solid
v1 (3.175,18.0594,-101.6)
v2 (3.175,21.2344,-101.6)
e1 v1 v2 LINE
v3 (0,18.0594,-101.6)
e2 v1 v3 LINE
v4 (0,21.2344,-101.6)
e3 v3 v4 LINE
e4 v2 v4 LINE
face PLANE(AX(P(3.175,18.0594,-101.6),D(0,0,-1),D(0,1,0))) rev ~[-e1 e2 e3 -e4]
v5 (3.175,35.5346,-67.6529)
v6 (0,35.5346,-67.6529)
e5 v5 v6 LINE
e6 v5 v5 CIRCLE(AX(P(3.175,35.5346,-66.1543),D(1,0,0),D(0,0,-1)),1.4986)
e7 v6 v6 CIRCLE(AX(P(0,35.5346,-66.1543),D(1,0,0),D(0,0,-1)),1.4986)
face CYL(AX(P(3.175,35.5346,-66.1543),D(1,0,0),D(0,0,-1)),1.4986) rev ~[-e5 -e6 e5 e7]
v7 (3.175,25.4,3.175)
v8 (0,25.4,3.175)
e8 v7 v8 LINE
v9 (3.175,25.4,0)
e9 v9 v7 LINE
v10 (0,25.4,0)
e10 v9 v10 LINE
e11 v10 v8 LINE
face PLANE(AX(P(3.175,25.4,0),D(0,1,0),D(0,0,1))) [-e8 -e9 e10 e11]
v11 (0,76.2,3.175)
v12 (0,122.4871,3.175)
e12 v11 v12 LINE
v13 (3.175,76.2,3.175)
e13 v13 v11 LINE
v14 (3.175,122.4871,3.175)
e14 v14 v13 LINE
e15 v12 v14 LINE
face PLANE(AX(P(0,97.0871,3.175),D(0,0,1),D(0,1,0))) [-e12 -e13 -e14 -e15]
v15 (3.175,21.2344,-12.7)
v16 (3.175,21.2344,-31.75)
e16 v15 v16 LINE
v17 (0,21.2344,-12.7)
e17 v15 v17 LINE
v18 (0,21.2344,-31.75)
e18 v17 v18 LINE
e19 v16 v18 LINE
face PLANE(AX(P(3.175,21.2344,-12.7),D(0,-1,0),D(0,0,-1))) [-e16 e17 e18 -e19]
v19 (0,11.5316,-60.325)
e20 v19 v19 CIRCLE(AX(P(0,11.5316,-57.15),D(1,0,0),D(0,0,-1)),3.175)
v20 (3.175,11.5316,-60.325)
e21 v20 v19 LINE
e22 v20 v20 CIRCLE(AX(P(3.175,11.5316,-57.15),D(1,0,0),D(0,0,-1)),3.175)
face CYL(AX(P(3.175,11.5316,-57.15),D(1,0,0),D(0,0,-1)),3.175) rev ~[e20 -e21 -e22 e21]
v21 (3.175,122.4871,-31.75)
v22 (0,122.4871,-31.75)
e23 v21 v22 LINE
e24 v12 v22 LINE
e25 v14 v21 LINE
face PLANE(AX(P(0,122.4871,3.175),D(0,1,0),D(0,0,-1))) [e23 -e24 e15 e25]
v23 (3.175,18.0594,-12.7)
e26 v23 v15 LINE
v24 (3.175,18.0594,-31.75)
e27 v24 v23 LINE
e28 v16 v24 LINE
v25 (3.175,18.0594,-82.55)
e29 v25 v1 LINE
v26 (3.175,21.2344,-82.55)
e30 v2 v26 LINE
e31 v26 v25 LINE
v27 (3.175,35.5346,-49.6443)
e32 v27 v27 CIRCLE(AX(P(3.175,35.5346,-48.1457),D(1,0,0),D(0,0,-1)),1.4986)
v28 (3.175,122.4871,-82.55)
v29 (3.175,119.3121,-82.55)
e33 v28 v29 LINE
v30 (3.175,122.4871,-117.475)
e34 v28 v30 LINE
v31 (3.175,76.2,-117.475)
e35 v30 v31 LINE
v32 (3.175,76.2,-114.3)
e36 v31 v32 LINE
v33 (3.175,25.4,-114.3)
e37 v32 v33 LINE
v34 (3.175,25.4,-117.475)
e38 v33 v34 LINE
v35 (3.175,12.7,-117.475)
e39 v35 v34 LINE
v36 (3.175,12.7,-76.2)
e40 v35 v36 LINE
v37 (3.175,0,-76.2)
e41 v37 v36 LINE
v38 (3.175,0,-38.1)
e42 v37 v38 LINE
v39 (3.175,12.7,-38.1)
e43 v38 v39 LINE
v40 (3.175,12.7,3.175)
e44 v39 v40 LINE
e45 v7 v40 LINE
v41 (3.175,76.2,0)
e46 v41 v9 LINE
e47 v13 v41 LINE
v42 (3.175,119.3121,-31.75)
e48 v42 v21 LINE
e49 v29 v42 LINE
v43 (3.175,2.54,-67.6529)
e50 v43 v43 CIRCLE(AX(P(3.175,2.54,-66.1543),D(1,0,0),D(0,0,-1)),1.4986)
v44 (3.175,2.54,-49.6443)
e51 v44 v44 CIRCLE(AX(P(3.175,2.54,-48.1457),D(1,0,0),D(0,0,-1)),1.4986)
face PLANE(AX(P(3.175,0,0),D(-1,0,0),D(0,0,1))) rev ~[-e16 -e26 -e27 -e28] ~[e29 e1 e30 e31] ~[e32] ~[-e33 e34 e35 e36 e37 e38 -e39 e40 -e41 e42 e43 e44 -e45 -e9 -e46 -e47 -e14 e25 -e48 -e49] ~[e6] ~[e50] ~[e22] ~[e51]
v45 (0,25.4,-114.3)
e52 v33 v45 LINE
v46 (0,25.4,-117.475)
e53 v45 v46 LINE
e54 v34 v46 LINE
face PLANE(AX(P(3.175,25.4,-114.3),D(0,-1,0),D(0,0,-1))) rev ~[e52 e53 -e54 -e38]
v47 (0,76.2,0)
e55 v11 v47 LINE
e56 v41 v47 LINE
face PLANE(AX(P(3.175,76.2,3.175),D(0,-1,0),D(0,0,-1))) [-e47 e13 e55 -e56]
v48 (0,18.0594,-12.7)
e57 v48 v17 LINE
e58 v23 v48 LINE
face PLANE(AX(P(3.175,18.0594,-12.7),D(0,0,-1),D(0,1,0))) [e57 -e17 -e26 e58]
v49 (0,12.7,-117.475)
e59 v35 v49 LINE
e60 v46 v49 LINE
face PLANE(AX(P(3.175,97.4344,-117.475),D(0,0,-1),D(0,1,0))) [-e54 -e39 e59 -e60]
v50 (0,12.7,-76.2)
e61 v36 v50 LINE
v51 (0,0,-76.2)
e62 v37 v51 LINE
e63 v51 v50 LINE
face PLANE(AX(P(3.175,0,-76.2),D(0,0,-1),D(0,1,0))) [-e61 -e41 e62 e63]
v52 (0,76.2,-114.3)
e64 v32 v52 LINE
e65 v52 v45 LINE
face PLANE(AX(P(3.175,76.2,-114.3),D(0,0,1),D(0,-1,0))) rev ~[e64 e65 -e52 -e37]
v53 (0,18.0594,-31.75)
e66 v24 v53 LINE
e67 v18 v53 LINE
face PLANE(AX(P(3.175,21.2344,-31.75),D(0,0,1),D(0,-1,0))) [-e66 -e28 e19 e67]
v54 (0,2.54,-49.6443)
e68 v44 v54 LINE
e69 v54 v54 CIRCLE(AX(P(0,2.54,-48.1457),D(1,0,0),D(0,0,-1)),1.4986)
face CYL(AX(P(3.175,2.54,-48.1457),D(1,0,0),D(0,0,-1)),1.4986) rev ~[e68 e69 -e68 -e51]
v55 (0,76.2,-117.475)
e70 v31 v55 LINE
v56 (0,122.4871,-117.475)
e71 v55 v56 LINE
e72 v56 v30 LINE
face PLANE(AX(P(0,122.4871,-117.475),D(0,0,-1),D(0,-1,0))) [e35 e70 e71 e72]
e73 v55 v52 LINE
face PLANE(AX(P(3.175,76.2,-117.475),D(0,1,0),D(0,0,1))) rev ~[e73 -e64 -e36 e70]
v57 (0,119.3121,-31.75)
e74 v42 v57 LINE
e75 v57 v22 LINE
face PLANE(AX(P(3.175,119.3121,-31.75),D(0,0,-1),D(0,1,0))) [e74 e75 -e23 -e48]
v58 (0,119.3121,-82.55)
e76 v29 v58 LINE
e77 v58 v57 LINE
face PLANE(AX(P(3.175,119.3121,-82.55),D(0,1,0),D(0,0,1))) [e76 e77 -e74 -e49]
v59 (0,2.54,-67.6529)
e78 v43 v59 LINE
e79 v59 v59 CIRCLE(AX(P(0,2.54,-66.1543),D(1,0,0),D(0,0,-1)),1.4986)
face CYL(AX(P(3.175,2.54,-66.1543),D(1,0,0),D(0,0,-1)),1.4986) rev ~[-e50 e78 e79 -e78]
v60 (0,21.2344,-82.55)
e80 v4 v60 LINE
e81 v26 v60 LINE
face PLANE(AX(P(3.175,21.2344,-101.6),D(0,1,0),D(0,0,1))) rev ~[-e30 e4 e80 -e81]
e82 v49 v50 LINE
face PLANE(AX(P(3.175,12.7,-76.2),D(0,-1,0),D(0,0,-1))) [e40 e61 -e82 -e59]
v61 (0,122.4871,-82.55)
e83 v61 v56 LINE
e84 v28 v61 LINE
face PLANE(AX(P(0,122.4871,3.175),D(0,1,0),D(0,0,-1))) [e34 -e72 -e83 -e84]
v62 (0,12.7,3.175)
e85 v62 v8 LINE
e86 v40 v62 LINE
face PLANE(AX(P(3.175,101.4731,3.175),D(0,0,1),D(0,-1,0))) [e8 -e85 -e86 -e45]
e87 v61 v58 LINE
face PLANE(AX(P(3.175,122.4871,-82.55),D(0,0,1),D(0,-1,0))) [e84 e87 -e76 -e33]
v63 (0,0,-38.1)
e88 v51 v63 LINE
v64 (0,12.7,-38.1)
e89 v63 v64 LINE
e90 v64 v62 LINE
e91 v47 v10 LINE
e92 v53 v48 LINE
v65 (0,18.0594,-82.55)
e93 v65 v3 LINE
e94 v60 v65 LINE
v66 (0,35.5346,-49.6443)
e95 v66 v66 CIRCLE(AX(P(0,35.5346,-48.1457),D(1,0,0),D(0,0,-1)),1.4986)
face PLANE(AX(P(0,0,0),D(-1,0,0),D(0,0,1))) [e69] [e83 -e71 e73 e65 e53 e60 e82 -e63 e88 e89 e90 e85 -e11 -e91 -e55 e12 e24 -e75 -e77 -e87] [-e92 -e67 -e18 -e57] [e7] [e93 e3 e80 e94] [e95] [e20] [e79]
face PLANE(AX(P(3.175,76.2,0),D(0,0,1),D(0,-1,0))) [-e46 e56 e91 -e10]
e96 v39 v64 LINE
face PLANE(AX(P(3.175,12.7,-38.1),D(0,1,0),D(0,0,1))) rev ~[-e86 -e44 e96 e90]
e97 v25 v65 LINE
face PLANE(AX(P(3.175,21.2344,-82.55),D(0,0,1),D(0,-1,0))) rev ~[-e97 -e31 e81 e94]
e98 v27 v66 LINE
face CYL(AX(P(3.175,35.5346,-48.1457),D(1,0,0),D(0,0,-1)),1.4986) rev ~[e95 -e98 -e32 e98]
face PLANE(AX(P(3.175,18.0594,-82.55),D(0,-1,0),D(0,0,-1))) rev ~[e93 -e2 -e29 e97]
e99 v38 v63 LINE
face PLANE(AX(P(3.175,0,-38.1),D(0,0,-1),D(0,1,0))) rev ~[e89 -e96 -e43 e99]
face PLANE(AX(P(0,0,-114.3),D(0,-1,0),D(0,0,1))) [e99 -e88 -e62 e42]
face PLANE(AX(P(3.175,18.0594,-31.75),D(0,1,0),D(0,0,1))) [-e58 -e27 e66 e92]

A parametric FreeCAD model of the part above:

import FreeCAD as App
import Part
import Sketcher
from FreeCAD import Vector
Q = App.Units.Quantity


def add_polygon(sketch, points):
    """Adds a closed chain of lines whose ends are joined by coincident constraints."""
    first, n = sketch.GeometryCount, len(points)
    for a, b in zip(points, points[1:] + points[:1]):
        sketch.addGeometry(Part.LineSegment(App.Vector(*a, 0), App.Vector(*b, 0)), False)
    for i in range(n):
        sketch.addConstraint(Sketcher.Constraint("Coincident", first + i, 2, first + (i + 1) % n, 1))

doc = App.newDocument("Part")
body = doc.addObject("PartDesign::Body", "Body")

# Sketch on YZ plane
sketch1 = doc.addObject("Sketcher::SketchObject", "Sketch")
body.addObject(sketch1)
sketch1.AttachmentSupport = (doc.YZ_Plane, [""])
sketch1.MapMode = "FlatFace"
add_polygon(sketch1, [(97, 0), (0, 0), (0, -114), (97, -114)])  # lines 0-3
sketch1.addConstraint([
    Sketcher.Constraint("Horizontal", 0),
    Sketcher.Constraint("Vertical", 1),
    Sketcher.Constraint("Horizontal", 2),
    Sketcher.Constraint("Vertical", 3),
    Sketcher.Constraint("Coincident", 0, 2, -1, 1),
    Sketcher.Constraint("DistanceY", 1, 2, 1, 1, Q("4.5 in")),
    Sketcher.Constraint("DistanceX", 0, 2, 0, 1, Q("3.836 in")),
])
pad1 = doc.addObject("PartDesign::Pad", "Pad")
body.addObject(pad1)
pad1.Profile = sketch1
pad1.Length = Q("0.125 in")

# Sketch on YZ plane
sketch2 = doc.addObject("Sketcher::SketchObject", "Sketch001")
body.addObject(sketch2)
sketch2.AttachmentSupport = (doc.YZ_Plane, [""])
sketch2.MapMode = "FlatFace"
sketch2.AttachmentOffset = App.Placement(Vector(0, 0, 0.125 * 25.4), App.Rotation())
sketch2.addGeometry([
    Part.Circle(Vector(35.5, -48.1, 0), Vector(0, 0, 1), 1.5),
    Part.Circle(Vector(35.5, -66.2, 0), Vector(0, 0, 1), 1.5),
    Part.Circle(Vector(2.5, -66.2, 0), Vector(0, 0, 1), 1.5),
    Part.Circle(Vector(2.5, -48.1, 0), Vector(0, 0, 1), 1.5),
], False)
sketch2.addConstraint([
    Sketcher.Constraint("Equal", 0, 1),
    Sketcher.Constraint("Equal", 1, 2),
    Sketcher.Constraint("Equal", 2, 3),
    Sketcher.Constraint("Horizontal", 1, 3, 2, 3),
    Sketcher.Constraint("Horizontal", 0, 3, 3, 3),
    Sketcher.Constraint("Vertical", 0, 3, 1, 3),
    Sketcher.Constraint("Vertical", 2, 3, 3, 3),
    Sketcher.Constraint("Diameter", 0, Q("0.118 in")),
    Sketcher.Constraint("DistanceX", -1, 1, 2, 3, Q("0.1 in")),
    Sketcher.Constraint("DistanceY", 1, 3, 0, 3, Q("0.709 in")),
    Sketcher.Constraint("DistanceX", 2, 3, 1, 3, Q("1.299 in")),
    Sketcher.Constraint("DistanceY", 0, 3, -1, 1, Q("1.8955 in")),
])
pocket1 = doc.addObject("PartDesign::Pocket", "Pocket")
body.addObject(pocket1)
pocket1.Profile = sketch2
pocket1.Length = Q("0.125 in")

# Sketch on YZ plane
sketch3 = doc.addObject("Sketcher::SketchObject", "Sketch002")
body.addObject(sketch3)
sketch3.AttachmentSupport = (doc.YZ_Plane, [""])
sketch3.MapMode = "FlatFace"
sketch3.AttachmentOffset = App.Placement(Vector(0, 0, 0.125 * 25.4), App.Rotation())
sketch3.addGeometry(Part.Circle(Vector(11.5, -57.1, 0), Vector(0, 0, 1), 3.2), False)
sketch3.addConstraint([
    Sketcher.Constraint("Diameter", 0, Q("0.25 in")),
    Sketcher.Constraint("DistanceY", 0, 3, -1, 1, Q("2.25 in")),
    Sketcher.Constraint("DistanceX", -1, 1, 0, 3, Q("0.454 in")),
])
pocket2 = doc.addObject("PartDesign::Pocket", "Pocket001")
body.addObject(pocket2)
pocket2.Profile = sketch3
pocket2.Length = Q("0.125 in")

# Sketch on YZ plane
sketch4 = doc.addObject("Sketcher::SketchObject", "Sketch003")
body.addObject(sketch4)
sketch4.AttachmentSupport = (doc.YZ_Plane, [""])
sketch4.MapMode = "FlatFace"
sketch4.AttachmentOffset = App.Placement(Vector(0, 0, 0.125 * 25.4), App.Rotation())
add_polygon(sketch4, [(18.1, -12.7), (18.1, -31.8), (21.2, -31.8), (21.2, -12.7)])  # lines 0-3
add_polygon(sketch4, [(21.2, -82.5), (18.1, -82.5), (18.1, -101.6), (21.2, -101.6)])  # lines 4-7
sketch4.addConstraint([
    Sketcher.Constraint("Vertical", 0),
    Sketcher.Constraint("Horizontal", 1),
    Sketcher.Constraint("Vertical", 2),
    Sketcher.Constraint("Horizontal", 3),
    Sketcher.Constraint("Horizontal", 4),
    Sketcher.Constraint("Vertical", 5),
    Sketcher.Constraint("Horizontal", 6),
    Sketcher.Constraint("Vertical", 7),
    Sketcher.Constraint("Vertical", 3, 2, 4, 2),
    Sketcher.Constraint("Vertical", 2, 2, 6, 2),
    Sketcher.Constraint("Equal", 2, 5),
    Sketcher.Constraint("DistanceY", 0, 2, 0, 1, Q("0.75 in")),
    Sketcher.Constraint("DistanceY", 2, 2, -1, 1, Q("0.5 in")),
    Sketcher.Constraint("DistanceX", 1, 1, 1, 2, Q("0.125 in")),
    Sketcher.Constraint("DistanceX", -1, 1, 0, 2, Q("0.711 in")),
    Sketcher.Constraint("DistanceY", 5, 2, -1, 1, Q("4 in")),
])
pocket3 = doc.addObject("PartDesign::Pocket", "Pocket002")
body.addObject(pocket3)
pocket3.Profile = sketch4
pocket3.Length = Q("0.125 in")

# Sketch on YZ plane
sketch5 = doc.addObject("Sketcher::SketchObject", "Sketch004")
body.addObject(sketch5)
sketch5.AttachmentSupport = (doc.YZ_Plane, [""])
sketch5.MapMode = "FlatFace"
sketch5.AttachmentOffset = App.Placement(Vector(0, 0, 0.125 * 25.4), App.Rotation())
add_polygon(sketch5, [(13, 0), (0, 0), (0, -38), (13, -38)])  # lines 0-3
add_polygon(sketch5, [(13, -76), (0, -76), (0, -114), (13, -114)])  # lines 4-7
sketch5.addConstraint([
    Sketcher.Constraint("Horizontal", 0),
    Sketcher.Constraint("Vertical", 1),
    Sketcher.Constraint("Horizontal", 2),
    Sketcher.Constraint("Vertical", 3),
    Sketcher.Constraint("Horizontal", 4),
    Sketcher.Constraint("Vertical", 5),
    Sketcher.Constraint("Horizontal", 6),
    Sketcher.Constraint("Vertical", 7),
    Sketcher.Constraint("Coincident", 0, 2, -1, 1),
    Sketcher.Constraint("PointOnObject", 4, 2, -2),
    Sketcher.Constraint("Vertical", 3, 2, 6, 2),
    Sketcher.Constraint("Equal", 3, 5),
    Sketcher.Constraint("DistanceX", 0, 2, 0, 1, Q("0.5 in")),
    Sketcher.Constraint("DistanceY", 1, 2, 1, 1, Q("1.5 in")),
    Sketcher.Constraint("DistanceY", 4, 2, 1, 2, Q("1.5 in")),
])
pocket4 = doc.addObject("PartDesign::Pocket", "Pocket003")
body.addObject(pocket4)
pocket4.Profile = sketch5
pocket4.Length = Q("0.125 in")

# Sketch on YZ plane
sketch6 = doc.addObject("Sketcher::SketchObject", "Sketch005")
body.addObject(sketch6)
sketch6.AttachmentSupport = (doc.YZ_Plane, [""])
sketch6.MapMode = "FlatFace"
sketch6.AttachmentOffset = App.Placement(Vector(0, 0, 0.125 * 25.4), App.Rotation())
add_polygon(sketch6, [(69.8, -3.2), (69.8, 0), (50.8, 0), (50.8, -3.2)])  # lines 0-3
add_polygon(sketch6, [(50.8, -114.3), (69.8, -114.3), (69.8, -111.1), (50.8, -111.1)])  # lines 4-7
sketch6.addConstraint([
    Sketcher.Constraint("Vertical", 0),
    Sketcher.Constraint("Horizontal", 1),
    Sketcher.Constraint("Vertical", 2),
    Sketcher.Constraint("Horizontal", 3),
    Sketcher.Constraint("Horizontal", 4),
    Sketcher.Constraint("Vertical", 5),
    Sketcher.Constraint("Horizontal", 6),
    Sketcher.Constraint("Vertical", 7),
    Sketcher.Constraint("PointOnObject", 0, 2, -1),
    Sketcher.Constraint("Vertical", 3, 2, 4, 2),
    Sketcher.Constraint("Vertical", 2, 2, 6, 2),
    Sketcher.Constraint("Equal", 2, 5),
    Sketcher.Constraint("DistanceX", 1, 2, 1, 1, Q("0.75 in")),
    Sketcher.Constraint("DistanceY", 0, 1, 0, 2, Q("0.125 in")),
    Sketcher.Constraint("DistanceX", -1, 1, 1, 2, Q("2 in")),
    Sketcher.Constraint("DistanceY", 4, 2, -1, 1, Q("4.5 in")),
])
pocket5 = doc.addObject("PartDesign::Pocket", "Pocket004")
body.addObject(pocket5)
pocket5.Profile = sketch6
pocket5.Length = Q("0.125 in")

# Sketch on YZ plane
sketch7 = doc.addObject("Sketcher::SketchObject", "Sketch006")
body.addObject(sketch7)
sketch7.AttachmentSupport = (doc.YZ_Plane, [""])
sketch7.MapMode = "FlatFace"
sketch7.AttachmentOffset = App.Placement(Vector(0, 0, 0.125 * 25.4), App.Rotation())
add_polygon(sketch7, [(101.5, 0), (101.5, 3.2), (12.7, 3.2), (12.7, 0), (50.8, 0), (50.8, -3.3), (69.8, -3.3), (69.8, 0)])  # lines 0-7
add_polygon(sketch7, [(101.5, -114.3), (69.8, -114.3), (69.8, -111.1), (50.8, -111.1), (50.8, -114.3), (12.7, -114.3), (12.7, -117.5), (101.5, -117.5)])  # lines 8-15
sketch7.addConstraint([
    Sketcher.Constraint("Vertical", 0),
    Sketcher.Constraint("Horizontal", 1),
    Sketcher.Constraint("Vertical", 2),
    Sketcher.Constraint("Horizontal", 3),
    Sketcher.Constraint("Vertical", 4),
    Sketcher.Constraint("Horizontal", 5),
    Sketcher.Constraint("Vertical", 6),
    Sketcher.Constraint("Horizontal", 7),
    Sketcher.Constraint("Horizontal", 8),
    Sketcher.Constraint("Vertical", 9),
    Sketcher.Constraint("Horizontal", 10),
    Sketcher.Constraint("Vertical", 11),
    Sketcher.Constraint("Horizontal", 12),
    Sketcher.Constraint("Vertical", 13),
    Sketcher.Constraint("Horizontal", 14),
    Sketcher.Constraint("Vertical", 15),
    Sketcher.Constraint("PointOnObject", 2, 2, -1),
    Sketcher.Constraint("PointOnObject", 6, 2, -1),
    Sketcher.Constraint("Horizontal", 8, 2, 11, 2),
    Sketcher.Constraint("Vertical", 6, 2, 8, 2),
    Sketcher.Constraint("Vertical", 4, 2, 10, 2),
    Sketcher.Constraint("Vertical", 2, 2, 12, 2),
    Sketcher.Constraint("Vertical", 7, 2, 14, 2),
    Sketcher.Constraint("Equal", 2, 9),
    Sketcher.Constraint("Equal", 11, 13),
    Sketcher.Constraint("DistanceY", 0, 1, 0, 2, Q("0.125 in")),
    Sketcher.Constraint("DistanceX", 3, 1, 3, 2, Q("1.5 in")),
    Sketcher.Constraint("DistanceX", -1, 1, 3, 2, Q("2 in")),
    Sketcher.Constraint("DistanceX", 5, 1, 5, 2, Q("0.75 in")),
    Sketcher.Constraint("DistanceY", 8, 2, -1, 1, Q("4.5 in")),
    Sketcher.Constraint("DistanceX", 1, 2, 1, 1, Q("3.495 in")),
    Sketcher.Constraint("DistanceY", 4, 2, 4, 1, 3.3446),
])
pad2 = doc.addObject("PartDesign::Pad", "Pad001")
body.addObject(pad2)
pad2.Profile = sketch7
pad2.Length = Q("0.125 in")
pad2.Reversed = True

# Sketch on YZ plane
sketch8 = doc.addObject("Sketcher::SketchObject", "Sketch007")
body.addObject(sketch8)
sketch8.AttachmentSupport = (doc.YZ_Plane, [""])
sketch8.MapMode = "FlatFace"
sketch8.AttachmentOffset = App.Placement(Vector(0, 0, 0.125 * 25.4), App.Rotation())
add_polygon(sketch8, [(76.2, 0), (76.2, 3.2), (25.4, 3.2), (25.4, 0)])  # lines 0-3
add_polygon(sketch8, [(25.4, -117.5), (76.2, -117.5), (76.2, -114.3), (25.4, -114.3)])  # lines 4-7
sketch8.addConstraint([
    Sketcher.Constraint("Vertical", 0),
    Sketcher.Constraint("Horizontal", 1),
    Sketcher.Constraint("Vertical", 2),
    Sketcher.Constraint("Horizontal", 3),
    Sketcher.Constraint("Horizontal", 4),
    Sketcher.Constraint("Vertical", 5),
    Sketcher.Constraint("Horizontal", 6),
    Sketcher.Constraint("Vertical", 7),
    Sketcher.Constraint("PointOnObject", 2, 2, -1),
    Sketcher.Constraint("Vertical", 3, 2, 4, 2),
    Sketcher.Constraint("Vertical", 2, 2, 6, 2),
    Sketcher.Constraint("Equal", 2, 5),
    Sketcher.Constraint("DistanceX", 1, 2, 1, 1, Q("2 in")),
    Sketcher.Constraint("DistanceY", 0, 1, 0, 2, Q("0.125 in")),
    Sketcher.Constraint("DistanceX", -1, 1, 0, 2, Q("3 in")),
    Sketcher.Constraint("DistanceY", 5, 2, -1, 1, Q("4.5 in")),
])
pocket6 = doc.addObject("PartDesign::Pocket", "Pocket005")
body.addObject(pocket6)
pocket6.Profile = sketch8
pocket6.Length = Q("0.125 in")

# Sketch on YZ plane
sketch9 = doc.addObject("Sketcher::SketchObject", "Sketch008")
body.addObject(sketch9)
sketch9.AttachmentSupport = (doc.YZ_Plane, [""])
sketch9.MapMode = "FlatFace"
sketch9.AttachmentOffset = App.Placement(Vector(0, 0, 0.125 * 25.4), App.Rotation())
add_polygon(sketch9, [(110, 3), (97, 3), (97, -128), (110, -128)])  # lines 0-3
sketch9.addConstraint([
    Sketcher.Constraint("Horizontal", 0),
    Sketcher.Constraint("Vertical", 1),
    Sketcher.Constraint("Horizontal", 2),
    Sketcher.Constraint("Vertical", 3),
    Sketcher.Constraint("DistanceY", -1, 1, 0, 2, Q("0.125 in")),
    Sketcher.Constraint("DistanceX", 0, 2, 0, 1, 13.1126),
    Sketcher.Constraint("DistanceY", 1, 2, 1, 1, 130.888),
    Sketcher.Constraint("DistanceX", -1, 1, 0, 2, 97.087),
])
pocket7 = doc.addObject("PartDesign::Pocket", "Pocket006")
body.addObject(pocket7)
pocket7.Profile = sketch9
pocket7.Length = Q("0.125 in")

# Sketch on YZ plane
sketch10 = doc.addObject("Sketcher::SketchObject", "Sketch009")
body.addObject(sketch10)
sketch10.AttachmentSupport = (doc.YZ_Plane, [""])
sketch10.MapMode = "FlatFace"
add_polygon(sketch10, [(122, -117), (97, -117), (97, 3), (122, 3)])  # lines 0-3
sketch10.addConstraint([
    Sketcher.Constraint("Horizontal", 0),
    Sketcher.Constraint("Vertical", 1),
    Sketcher.Constraint("Horizontal", 2),
    Sketcher.Constraint("Vertical", 3),
    Sketcher.Constraint("DistanceX", 0, 2, 0, 1, Q("1 in")),
    Sketcher.Constraint("DistanceY", 1, 1, 1, 2, Q("4.75 in")),
    Sketcher.Constraint("DistanceY", 0, 2, -1, 1, Q("4.625 in")),
    Sketcher.Constraint("DistanceX", -1, 1, 0, 2, 97.087),
])
pad3 = doc.addObject("PartDesign::Pad", "Pad002")
body.addObject(pad3)
pad3.Profile = sketch10
pad3.Length = Q("0.125 in")

# Sketch on YZ plane
sketch11 = doc.addObject("Sketcher::SketchObject", "Sketch010")
body.addObject(sketch11)
sketch11.AttachmentSupport = (doc.YZ_Plane, [""])
sketch11.MapMode = "FlatFace"
sketch11.AttachmentOffset = App.Placement(Vector(0, 0, 0.125 * 25.4), App.Rotation())
add_polygon(sketch11, [(119.3, -82.5), (122.5, -82.5), (122.5, -31.8), (119.3, -31.8)])  # lines 0-3
sketch11.addConstraint([
    Sketcher.Constraint("Horizontal", 0),
    Sketcher.Constraint("Vertical", 1),
    Sketcher.Constraint("Horizontal", 2),
    Sketcher.Constraint("Vertical", 3),
    Sketcher.Constraint("DistanceY", 1, 1, 1, 2, Q("2 in")),
    Sketcher.Constraint("DistanceX", 0, 1, 0, 2, Q("0.125 in")),
    Sketcher.Constraint("DistanceY", 0, 2, -1, 1, Q("3.25 in")),
    Sketcher.Constraint("DistanceX", -1, 1, 0, 2, 122.487),
])
pocket8 = doc.addObject("PartDesign::Pocket", "Pocket007")
body.addObject(pocket8)
pocket8.Profile = sketch11
pocket8.Length = Q("0.125 in")

doc.recompute()
